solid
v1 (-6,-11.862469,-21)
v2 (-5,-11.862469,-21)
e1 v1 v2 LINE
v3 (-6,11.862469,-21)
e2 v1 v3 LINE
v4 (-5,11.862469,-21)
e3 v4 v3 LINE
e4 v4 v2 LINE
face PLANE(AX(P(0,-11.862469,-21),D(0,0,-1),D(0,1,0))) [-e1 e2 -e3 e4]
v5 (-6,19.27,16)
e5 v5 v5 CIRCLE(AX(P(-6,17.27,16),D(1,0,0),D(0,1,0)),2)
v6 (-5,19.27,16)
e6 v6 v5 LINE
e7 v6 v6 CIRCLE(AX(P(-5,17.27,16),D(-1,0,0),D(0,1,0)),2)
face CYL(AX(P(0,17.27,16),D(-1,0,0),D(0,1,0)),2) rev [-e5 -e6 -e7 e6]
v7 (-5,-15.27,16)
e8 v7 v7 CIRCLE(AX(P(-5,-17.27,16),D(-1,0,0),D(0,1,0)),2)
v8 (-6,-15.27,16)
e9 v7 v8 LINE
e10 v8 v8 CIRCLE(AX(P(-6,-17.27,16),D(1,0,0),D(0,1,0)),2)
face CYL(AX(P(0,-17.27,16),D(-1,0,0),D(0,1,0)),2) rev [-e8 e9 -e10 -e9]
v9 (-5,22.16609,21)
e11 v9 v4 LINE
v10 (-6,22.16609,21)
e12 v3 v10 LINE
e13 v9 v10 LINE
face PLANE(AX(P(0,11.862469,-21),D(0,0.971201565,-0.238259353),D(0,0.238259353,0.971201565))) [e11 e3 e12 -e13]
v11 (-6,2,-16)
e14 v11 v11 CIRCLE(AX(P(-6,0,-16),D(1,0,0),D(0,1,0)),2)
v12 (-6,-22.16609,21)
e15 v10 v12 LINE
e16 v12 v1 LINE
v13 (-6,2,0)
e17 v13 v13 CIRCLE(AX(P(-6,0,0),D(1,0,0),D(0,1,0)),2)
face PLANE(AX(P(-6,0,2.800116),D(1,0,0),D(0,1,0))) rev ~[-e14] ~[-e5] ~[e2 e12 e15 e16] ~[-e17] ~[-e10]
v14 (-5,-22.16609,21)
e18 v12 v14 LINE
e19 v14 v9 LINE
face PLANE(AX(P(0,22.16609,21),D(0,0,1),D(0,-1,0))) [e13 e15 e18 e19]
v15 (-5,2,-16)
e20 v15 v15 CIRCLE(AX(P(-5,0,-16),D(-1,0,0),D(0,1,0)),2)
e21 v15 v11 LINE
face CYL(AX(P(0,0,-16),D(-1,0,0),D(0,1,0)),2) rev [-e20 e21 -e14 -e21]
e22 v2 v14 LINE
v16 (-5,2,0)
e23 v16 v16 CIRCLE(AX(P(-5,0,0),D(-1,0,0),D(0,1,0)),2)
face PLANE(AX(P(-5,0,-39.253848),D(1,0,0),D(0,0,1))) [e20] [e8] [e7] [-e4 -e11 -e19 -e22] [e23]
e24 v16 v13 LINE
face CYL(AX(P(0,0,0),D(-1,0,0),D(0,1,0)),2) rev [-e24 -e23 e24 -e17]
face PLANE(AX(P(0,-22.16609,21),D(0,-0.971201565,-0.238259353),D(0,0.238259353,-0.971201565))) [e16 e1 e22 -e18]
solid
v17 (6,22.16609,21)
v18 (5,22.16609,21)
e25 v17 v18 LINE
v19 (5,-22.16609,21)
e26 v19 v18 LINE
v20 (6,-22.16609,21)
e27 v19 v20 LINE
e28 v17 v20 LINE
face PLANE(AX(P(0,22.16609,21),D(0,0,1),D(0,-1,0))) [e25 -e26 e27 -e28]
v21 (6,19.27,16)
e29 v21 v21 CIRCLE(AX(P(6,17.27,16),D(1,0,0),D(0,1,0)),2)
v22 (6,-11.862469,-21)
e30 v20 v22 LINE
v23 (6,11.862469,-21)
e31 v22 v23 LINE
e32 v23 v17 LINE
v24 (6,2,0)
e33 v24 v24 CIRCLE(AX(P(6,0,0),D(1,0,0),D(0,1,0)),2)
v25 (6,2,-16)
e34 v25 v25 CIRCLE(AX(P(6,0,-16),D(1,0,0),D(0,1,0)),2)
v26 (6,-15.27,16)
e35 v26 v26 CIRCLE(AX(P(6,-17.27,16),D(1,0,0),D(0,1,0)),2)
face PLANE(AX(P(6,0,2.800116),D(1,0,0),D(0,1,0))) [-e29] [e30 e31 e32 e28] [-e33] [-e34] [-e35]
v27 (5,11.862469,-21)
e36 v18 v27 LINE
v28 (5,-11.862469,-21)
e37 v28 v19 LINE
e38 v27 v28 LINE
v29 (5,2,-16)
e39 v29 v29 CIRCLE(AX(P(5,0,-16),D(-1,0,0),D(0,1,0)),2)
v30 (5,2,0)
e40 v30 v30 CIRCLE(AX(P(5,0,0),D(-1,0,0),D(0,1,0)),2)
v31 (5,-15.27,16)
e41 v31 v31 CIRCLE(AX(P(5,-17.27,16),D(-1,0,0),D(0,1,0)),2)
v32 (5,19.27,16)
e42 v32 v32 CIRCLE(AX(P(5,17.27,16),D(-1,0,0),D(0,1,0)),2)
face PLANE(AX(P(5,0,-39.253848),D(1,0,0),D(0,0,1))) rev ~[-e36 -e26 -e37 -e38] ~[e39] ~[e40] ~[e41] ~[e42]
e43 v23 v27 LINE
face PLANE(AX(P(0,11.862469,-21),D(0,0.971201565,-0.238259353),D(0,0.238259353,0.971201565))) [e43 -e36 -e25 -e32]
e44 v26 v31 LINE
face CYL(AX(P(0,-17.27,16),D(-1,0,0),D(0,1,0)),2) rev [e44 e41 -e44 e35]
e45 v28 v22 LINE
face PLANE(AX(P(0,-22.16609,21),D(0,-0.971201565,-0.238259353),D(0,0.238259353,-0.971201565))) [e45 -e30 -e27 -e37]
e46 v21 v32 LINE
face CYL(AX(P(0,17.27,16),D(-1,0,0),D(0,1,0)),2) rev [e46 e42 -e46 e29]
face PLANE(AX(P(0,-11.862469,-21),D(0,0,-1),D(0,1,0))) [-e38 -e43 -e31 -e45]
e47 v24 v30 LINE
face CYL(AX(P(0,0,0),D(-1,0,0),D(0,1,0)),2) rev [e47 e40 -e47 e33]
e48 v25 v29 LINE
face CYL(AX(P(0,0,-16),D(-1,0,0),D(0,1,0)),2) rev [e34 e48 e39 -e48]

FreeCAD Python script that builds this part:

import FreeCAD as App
import Part
import Sketcher

V = App.Vector
Q = App.Units.Quantity


def add_polygon(sketch, points):
    """Adds a closed chain of lines whose ends are joined by coincident constraints."""
    first, n = sketch.GeometryCount, len(points)
    for a, b in zip(points, points[1:] + points[:1]):
        sketch.addGeometry(Part.LineSegment(App.Vector(*a, 0), App.Vector(*b, 0)), False)
    for i in range(n):
        sketch.addConstraint(Sketcher.Constraint("Coincident", first + i, 2, first + (i + 1) % n, 1))

doc = App.newDocument("Part")
body = doc.addObject("PartDesign::Body", "Body")
body.AllowCompound = True

sketch1 = body.newObject("Sketcher::SketchObject", "Sketch")
sketch1.AttachmentSupport = (doc.getObject("YZ_Plane"), [""])
sketch1.MapMode = "FlatFace"
add_polygon(sketch1, [(22.2, 21), (-22.2, 21), (-11.9, -21), (11.9, -21)])
sketch1.addGeometry(Part.Circle(V(0, -16, 0), V(0, 0, 1), 2), False)
sketch1.addGeometry(Part.Circle(V(-17.3, 16, 0), V(0, 0, 1), 2), False)
sketch1.addGeometry(Part.Circle(V(0, 0, 0), V(0, 0, 1), 2), False)
sketch1.addGeometry(Part.Circle(V(17.3, 16, 0), V(0, 0, 1), 2), False)
sketch1.addConstraint([
    Sketcher.Constraint("Horizontal", 0),
    Sketcher.Constraint("Horizontal", 2),
    Sketcher.Constraint("Coincident", 6, 3, -1, 1),
    Sketcher.Constraint("Equal", 4, 5),
    Sketcher.Constraint("Equal", 5, 6),
    Sketcher.Constraint("Equal", 6, 7),
    Sketcher.Constraint("Symmetric", 5, 3, 7, 3, -2),
    Sketcher.Constraint("PointOnObject", 4, 3, -2),
    Sketcher.Constraint("Equal", 1, 3),
    Sketcher.Constraint("Diameter", 4, Q("4 mm")),
    Sketcher.Constraint("DistanceY", 4, 3, -1, 1, Q("16 mm")),
    Sketcher.Constraint("DistanceY", -1, 1, 5, 3, Q("16 mm")),
    Sketcher.Constraint("DistanceY", -1, 1, 0, 2, Q("21 mm")),
    Sketcher.Constraint("DistanceY", 1, 2, -1, 1, Q("21 mm")),
    Sketcher.Constraint("DistanceX", 5, 3, -1, 1, Q("17.27 mm")),
    Sketcher.Constraint("Distance", 1, Q("43.2454 mm")),
    Sketcher.Constraint("DistanceX", 0, 2, 0, 1, Q("44.33218 mm")),
    Sketcher.Constraint("DistanceX", 0, 2, -1, 1, Q("22.16609 mm")),
])
pad1 = body.newObject("PartDesign::Pad", "Pad")
pad1.Profile = sketch1
pad1.Length = 12
pad1.Midplane = True

sketch2 = body.newObject("Sketcher::SketchObject", "Sketch001")
sketch2.AttachmentSupport = (doc.getObject("XZ_Plane"), [""])
sketch2.MapMode = "FlatFace"
add_polygon(sketch2, [(-5, 39), (-5, -39), (5, -39), (5, 39)])
sketch2.addConstraint([
    Sketcher.Constraint("Vertical", 0),
    Sketcher.Constraint("Horizontal", 1),
    Sketcher.Constraint("Vertical", 2),
    Sketcher.Constraint("Horizontal", 3),
    Sketcher.Constraint("Symmetric", 0, 2, 2, 2, -1, 1),
    Sketcher.Constraint("DistanceX", 1, 1, 1, 2, Q("10 mm")),
    Sketcher.Constraint("DistanceY", 0, 2, 0, 1, Q("78.507696 mm")),
])
pocket1 = body.newObject("PartDesign::Pocket", "Pocket")
pocket1.Profile = sketch2
pocket1.Length = 100
pocket1.Midplane = True

doc.recompute()
